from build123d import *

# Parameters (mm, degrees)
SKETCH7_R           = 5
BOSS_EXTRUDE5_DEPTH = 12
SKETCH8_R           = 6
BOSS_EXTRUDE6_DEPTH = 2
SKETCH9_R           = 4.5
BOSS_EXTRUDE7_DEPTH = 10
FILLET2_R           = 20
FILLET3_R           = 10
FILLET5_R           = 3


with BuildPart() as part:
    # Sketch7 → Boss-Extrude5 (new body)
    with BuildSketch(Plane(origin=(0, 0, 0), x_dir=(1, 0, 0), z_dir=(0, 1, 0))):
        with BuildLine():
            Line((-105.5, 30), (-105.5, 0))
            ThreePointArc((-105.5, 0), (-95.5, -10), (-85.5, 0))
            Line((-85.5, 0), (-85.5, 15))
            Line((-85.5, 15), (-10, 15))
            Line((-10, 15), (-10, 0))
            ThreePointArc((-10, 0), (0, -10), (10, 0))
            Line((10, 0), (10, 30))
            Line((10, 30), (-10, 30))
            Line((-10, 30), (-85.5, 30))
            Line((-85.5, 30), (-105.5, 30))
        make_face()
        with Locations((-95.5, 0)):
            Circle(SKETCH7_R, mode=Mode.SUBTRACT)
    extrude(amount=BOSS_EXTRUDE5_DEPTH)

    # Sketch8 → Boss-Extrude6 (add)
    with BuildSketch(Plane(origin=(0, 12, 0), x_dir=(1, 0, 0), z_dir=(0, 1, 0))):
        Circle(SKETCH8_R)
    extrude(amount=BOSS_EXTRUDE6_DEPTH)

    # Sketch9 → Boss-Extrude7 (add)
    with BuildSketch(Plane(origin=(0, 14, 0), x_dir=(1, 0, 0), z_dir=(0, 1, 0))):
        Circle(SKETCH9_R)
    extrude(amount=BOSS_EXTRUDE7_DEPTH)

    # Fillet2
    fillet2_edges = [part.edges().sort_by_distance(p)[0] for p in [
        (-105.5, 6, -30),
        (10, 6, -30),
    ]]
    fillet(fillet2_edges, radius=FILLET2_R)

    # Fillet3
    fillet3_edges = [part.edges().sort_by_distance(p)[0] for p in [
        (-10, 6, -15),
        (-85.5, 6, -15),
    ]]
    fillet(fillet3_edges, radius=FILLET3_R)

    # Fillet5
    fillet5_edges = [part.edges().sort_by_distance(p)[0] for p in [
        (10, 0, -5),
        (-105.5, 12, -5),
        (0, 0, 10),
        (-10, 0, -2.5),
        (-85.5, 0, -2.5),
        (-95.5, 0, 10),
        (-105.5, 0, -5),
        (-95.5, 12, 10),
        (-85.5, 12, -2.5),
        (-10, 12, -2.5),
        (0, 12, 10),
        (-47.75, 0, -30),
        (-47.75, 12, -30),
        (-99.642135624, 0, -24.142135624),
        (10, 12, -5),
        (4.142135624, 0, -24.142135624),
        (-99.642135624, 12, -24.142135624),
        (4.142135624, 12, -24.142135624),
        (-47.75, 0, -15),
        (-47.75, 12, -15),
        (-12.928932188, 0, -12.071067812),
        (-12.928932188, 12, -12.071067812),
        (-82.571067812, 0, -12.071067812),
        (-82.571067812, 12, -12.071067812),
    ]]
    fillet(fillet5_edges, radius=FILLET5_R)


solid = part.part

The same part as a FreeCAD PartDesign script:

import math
import FreeCAD as App
import Part
import Sketcher

V = App.Vector
Q = App.Units.Quantity


def edges_at(feature, points):
    """Names of the edges that pass closest to the given points."""
    edges = feature.Shape.Edges
    near = lambda p: min(range(len(edges)), key=lambda i: edges[i].distToShape(Part.Vertex(*p))[0])
    return sorted({f"Edge{near(p) + 1}" for p in points})

doc = App.newDocument("Part")
body = doc.addObject("PartDesign::Body", "Body")

sketch1 = body.newObject("Sketcher::SketchObject", "Sketch")
sketch1.AttachmentSupport = (doc.getObject("XZ_Plane"), [""])
sketch1.MapMode = "FlatFace"
sketch1.addGeometry([
    Part.LineSegment(V(-106, -30, 0), V(-106, 0, 0)),
    Part.ArcOfCircle(Part.Circle(V(-96, 0, 0), V(0, 0, 1), 10), math.radians(0), math.radians(180)),
    Part.LineSegment(V(-86, 0, 0), V(-86, -15, 0)),
    Part.LineSegment(V(-86, -15, 0), V(-10, -15, 0)),
    Part.LineSegment(V(-10, -15, 0), V(-10, 0, 0)),
    Part.ArcOfCircle(Part.Circle(V(0, 0, 0), V(0, 0, 1), 10), math.radians(0), math.radians(180)),
    Part.LineSegment(V(10, 0, 0), V(10, -30, 0)),
    Part.LineSegment(V(10, -30, 0), V(-106, -30, 0)),
    Part.Circle(V(-96, 0, 0), V(0, 0, 1), 5),
], False)
sketch1.addConstraint([
    Sketcher.Constraint("Tangent", 0, 2, 1, 2),
    Sketcher.Constraint("Tangent", 1, 1, 2, 1),
    Sketcher.Constraint("Coincident", 2, 2, 3, 1),
    Sketcher.Constraint("Coincident", 3, 2, 4, 1),
    Sketcher.Constraint("Tangent", 4, 2, 5, 2),
    Sketcher.Constraint("Tangent", 5, 1, 6, 1),
    Sketcher.Constraint("Coincident", 6, 2, 7, 1),
    Sketcher.Constraint("Coincident", 7, 2, 0, 1),
    Sketcher.Constraint("Vertical", 0),
    Sketcher.Constraint("Vertical", 2),
    Sketcher.Constraint("Horizontal", 3),
    Sketcher.Constraint("Vertical", 4),
    Sketcher.Constraint("Vertical", 6),
    Sketcher.Constraint("Horizontal", 7),
    Sketcher.Constraint("Coincident", 5, 3, -1, 1),
    Sketcher.Constraint("Coincident", 8, 3, 1, 3),
    Sketcher.Constraint("Equal", 1, 5),
    Sketcher.Constraint("PointOnObject", 1, 3, -1),
    Sketcher.Constraint("Diameter", 8, Q("10 mm")),
    Sketcher.Constraint("Radius", 1, Q("10 mm")),
    Sketcher.Constraint("DistanceY", 0, 1, 0, 2, Q("30 mm")),
    Sketcher.Constraint("DistanceY", 2, 2, 2, 1, Q("15 mm")),
    Sketcher.Constraint("DistanceX", 3, 1, 3, 2, Q("75.5 mm")),
])
pad1 = body.newObject("PartDesign::Pad", "Pad")
pad1.Profile = sketch1
pad1.Length = 12
pad1.Reversed = True

sketch2 = body.newObject("Sketcher::SketchObject", "Sketch001")
sketch2.AttachmentSupport = (doc.getObject("XZ_Plane"), [""])
sketch2.MapMode = "FlatFace"
sketch2.AttachmentOffset = App.Placement(V(0, 0, -12), App.Rotation())
sketch2.addGeometry(Part.Circle(V(0, 0, 0), V(0, 0, 1), 6), False)
sketch2.addConstraint([
    Sketcher.Constraint("Coincident", 0, 3, -1, 1),
    Sketcher.Constraint("Diameter", 0, Q("12 mm")),
])
pad2 = body.newObject("PartDesign::Pad", "Pad001")
pad2.Profile = sketch2
pad2.Length = 2
pad2.Reversed = True

sketch3 = body.newObject("Sketcher::SketchObject", "Sketch002")
sketch3.AttachmentSupport = (doc.getObject("XZ_Plane"), [""])
sketch3.MapMode = "FlatFace"
sketch3.AttachmentOffset = App.Placement(V(0, 0, -14), App.Rotation())
sketch3.addGeometry(Part.Circle(V(0, 0, 0), V(0, 0, 1), 4.5), False)
sketch3.addConstraint([
    Sketcher.Constraint("Coincident", 0, 3, -1, 1),
    Sketcher.Constraint("Diameter", 0, Q("9 mm")),
])
pad3 = body.newObject("PartDesign::Pad", "Pad002")
pad3.Profile = sketch3
pad3.Length = 10
pad3.Reversed = True
doc.recompute()

fillet = body.newObject("PartDesign::Fillet", "Fillet")
fillet.Base = (pad3, edges_at(pad3, [(-105.5, 6, -30), (10, 6, -30)]))
fillet.Radius = 20
doc.recompute()

fillet2 = body.newObject("PartDesign::Fillet", "Fillet001")
fillet2.Base = (fillet, edges_at(fillet, [(-10, 6, -15), (-85.5, 6, -15)]))
fillet2.Radius = 10
doc.recompute()

fillet3 = body.newObject("PartDesign::Fillet", "Fillet002")
fillet3.Base = (fillet2, edges_at(fillet2, [
    (10, 0, -5),
    (-105.5, 12, -5),
    (0, 0, 10),
    (-10, 0, -2.5),
    (-85.5, 0, -2.5),
    (-95.5, 0, 10),
    (-105.5, 0, -5),
    (-95.5, 12, 10),
    (-85.5, 12, -2.5),
    (-10, 12, -2.5),
    (0, 12, 10),
    (-47.75, 0, -30),
    (-47.75, 12, -30),
    (-99.642, 0, -24.142),
    (10, 12, -5),
    (4.142, 0, -24.142),
    (-99.642, 12, -24.142),
    (4.142, 12, -24.142),
    (-47.75, 0, -15),
    (-47.75, 12, -15),
    (-12.929, 0, -12.071),
    (-12.929, 12, -12.071),
    (-82.571, 0, -12.071),
    (-82.571, 12, -12.071),
]))
fillet3.Radius = 3

doc.recompute()
